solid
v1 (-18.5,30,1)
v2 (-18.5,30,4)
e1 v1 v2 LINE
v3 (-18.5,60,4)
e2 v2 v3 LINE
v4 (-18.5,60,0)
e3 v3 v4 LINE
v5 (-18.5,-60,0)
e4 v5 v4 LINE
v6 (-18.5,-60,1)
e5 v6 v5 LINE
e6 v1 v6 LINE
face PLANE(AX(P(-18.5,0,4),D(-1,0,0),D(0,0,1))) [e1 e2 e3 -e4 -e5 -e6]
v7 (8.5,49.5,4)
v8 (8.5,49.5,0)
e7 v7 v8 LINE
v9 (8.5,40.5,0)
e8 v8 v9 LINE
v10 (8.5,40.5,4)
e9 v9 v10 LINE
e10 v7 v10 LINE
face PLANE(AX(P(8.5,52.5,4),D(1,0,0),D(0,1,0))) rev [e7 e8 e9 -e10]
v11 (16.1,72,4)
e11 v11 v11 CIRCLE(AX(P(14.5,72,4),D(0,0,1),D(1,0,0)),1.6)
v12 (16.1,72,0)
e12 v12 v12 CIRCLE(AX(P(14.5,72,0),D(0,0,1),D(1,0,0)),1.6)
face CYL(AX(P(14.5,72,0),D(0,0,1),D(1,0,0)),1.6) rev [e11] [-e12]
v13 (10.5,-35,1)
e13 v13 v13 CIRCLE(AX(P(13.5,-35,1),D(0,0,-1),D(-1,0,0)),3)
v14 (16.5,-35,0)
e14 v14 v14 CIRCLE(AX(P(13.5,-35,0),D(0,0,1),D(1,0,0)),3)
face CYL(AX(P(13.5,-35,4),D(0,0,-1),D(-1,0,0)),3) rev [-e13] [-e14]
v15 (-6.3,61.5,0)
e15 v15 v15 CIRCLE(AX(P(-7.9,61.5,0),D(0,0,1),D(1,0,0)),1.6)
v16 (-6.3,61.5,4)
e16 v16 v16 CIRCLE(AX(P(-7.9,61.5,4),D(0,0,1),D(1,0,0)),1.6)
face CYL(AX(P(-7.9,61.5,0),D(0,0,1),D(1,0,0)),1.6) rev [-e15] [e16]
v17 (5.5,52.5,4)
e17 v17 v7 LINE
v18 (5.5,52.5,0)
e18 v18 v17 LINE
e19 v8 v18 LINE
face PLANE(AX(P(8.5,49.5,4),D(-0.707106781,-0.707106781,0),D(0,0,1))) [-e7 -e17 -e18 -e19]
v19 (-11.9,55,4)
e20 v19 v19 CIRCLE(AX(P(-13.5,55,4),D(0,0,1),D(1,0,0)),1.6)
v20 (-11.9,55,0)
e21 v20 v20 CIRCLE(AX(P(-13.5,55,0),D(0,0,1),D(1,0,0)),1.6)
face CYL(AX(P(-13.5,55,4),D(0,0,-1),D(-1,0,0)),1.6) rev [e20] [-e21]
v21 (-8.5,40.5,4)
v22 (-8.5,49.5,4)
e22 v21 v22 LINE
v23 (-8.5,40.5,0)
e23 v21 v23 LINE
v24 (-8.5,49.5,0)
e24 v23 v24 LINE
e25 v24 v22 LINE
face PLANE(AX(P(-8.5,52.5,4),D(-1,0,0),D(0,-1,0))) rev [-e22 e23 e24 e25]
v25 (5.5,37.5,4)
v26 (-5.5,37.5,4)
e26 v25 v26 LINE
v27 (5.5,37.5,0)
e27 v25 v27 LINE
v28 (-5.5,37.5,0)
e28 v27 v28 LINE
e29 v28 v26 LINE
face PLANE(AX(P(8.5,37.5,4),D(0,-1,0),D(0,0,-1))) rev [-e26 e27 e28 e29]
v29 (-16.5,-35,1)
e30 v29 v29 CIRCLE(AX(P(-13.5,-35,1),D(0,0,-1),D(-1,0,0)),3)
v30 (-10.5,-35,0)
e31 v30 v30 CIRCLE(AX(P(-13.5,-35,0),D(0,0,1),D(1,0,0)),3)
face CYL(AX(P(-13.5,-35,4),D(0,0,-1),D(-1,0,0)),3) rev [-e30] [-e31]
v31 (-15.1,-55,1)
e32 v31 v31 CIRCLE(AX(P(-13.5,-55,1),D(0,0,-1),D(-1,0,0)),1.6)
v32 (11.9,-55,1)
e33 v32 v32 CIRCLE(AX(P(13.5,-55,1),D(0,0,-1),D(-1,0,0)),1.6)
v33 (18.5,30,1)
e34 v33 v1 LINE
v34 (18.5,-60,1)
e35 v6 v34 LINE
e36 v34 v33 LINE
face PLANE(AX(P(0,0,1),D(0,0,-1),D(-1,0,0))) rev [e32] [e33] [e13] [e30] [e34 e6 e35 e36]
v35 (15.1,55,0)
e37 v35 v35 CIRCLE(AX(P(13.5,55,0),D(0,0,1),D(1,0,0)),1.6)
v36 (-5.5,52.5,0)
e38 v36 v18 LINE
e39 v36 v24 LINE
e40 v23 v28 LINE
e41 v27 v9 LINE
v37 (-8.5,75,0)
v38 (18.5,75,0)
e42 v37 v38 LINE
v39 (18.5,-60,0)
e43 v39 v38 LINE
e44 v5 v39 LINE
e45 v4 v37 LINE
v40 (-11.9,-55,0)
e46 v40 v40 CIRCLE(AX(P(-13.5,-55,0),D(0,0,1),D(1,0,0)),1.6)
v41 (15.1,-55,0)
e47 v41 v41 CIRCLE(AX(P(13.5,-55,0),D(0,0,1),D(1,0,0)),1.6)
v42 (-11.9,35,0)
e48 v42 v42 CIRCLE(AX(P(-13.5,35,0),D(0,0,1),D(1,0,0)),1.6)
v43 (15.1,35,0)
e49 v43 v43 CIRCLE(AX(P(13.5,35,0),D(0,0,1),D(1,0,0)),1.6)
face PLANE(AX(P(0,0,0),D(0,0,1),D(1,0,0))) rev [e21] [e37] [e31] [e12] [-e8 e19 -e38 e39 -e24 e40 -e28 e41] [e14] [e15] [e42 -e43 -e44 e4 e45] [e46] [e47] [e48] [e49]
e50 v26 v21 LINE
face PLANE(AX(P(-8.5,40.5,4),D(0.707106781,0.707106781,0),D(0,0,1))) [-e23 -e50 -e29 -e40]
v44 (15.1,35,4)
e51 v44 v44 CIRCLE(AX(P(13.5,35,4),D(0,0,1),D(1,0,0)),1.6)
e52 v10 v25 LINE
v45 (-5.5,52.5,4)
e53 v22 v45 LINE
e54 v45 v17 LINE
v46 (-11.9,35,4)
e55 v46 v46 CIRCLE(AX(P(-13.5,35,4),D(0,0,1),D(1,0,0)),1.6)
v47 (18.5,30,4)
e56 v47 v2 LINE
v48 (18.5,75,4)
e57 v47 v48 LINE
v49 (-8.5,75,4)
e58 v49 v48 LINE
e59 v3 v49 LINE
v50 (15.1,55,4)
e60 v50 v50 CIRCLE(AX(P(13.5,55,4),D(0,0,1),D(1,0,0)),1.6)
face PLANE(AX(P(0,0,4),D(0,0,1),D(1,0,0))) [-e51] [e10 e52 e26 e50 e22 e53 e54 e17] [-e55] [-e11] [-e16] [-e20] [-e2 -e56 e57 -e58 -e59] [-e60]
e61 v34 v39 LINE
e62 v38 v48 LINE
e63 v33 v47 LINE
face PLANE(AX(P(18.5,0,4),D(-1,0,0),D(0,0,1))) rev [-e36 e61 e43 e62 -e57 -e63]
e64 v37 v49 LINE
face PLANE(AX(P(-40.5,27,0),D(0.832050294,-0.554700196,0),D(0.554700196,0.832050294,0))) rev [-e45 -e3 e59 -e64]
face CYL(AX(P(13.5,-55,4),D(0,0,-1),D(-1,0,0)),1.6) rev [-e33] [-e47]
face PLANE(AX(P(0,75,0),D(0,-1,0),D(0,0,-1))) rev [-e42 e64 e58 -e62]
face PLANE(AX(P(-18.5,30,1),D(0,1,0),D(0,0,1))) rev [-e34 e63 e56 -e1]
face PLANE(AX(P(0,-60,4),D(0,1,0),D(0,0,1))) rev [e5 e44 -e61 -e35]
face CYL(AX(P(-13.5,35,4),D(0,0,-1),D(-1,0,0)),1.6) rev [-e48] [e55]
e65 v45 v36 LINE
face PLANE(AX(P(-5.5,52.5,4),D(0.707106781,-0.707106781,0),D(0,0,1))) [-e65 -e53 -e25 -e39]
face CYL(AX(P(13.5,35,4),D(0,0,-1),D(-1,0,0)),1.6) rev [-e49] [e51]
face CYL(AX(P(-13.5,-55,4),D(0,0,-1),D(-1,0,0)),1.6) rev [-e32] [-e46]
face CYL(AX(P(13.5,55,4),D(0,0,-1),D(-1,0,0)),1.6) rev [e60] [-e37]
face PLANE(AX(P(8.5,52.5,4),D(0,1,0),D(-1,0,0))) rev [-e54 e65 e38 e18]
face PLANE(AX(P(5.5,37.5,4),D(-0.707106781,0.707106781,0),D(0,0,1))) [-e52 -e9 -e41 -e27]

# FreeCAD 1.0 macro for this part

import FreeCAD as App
import Part
import Sketcher
from FreeCAD import Vector


def edges_at(feature, points):
    """Names of the edges that pass closest to the given points."""
    edges = feature.Shape.Edges
    near = lambda p: min(range(len(edges)), key=lambda i: edges[i].distToShape(Part.Vertex(*p))[0])
    return sorted({f"Edge{near(p) + 1}" for p in points})


def add_polygon(sketch, points):
    """Adds a closed chain of lines whose ends are joined by coincident constraints."""
    first, n = sketch.GeometryCount, len(points)
    for a, b in zip(points, points[1:] + points[:1]):
        sketch.addGeometry(Part.LineSegment(App.Vector(*a, 0), App.Vector(*b, 0)), False)
    for i in range(n):
        sketch.addConstraint(Sketcher.Constraint("Coincident", first + i, 2, first + (i + 1) % n, 1))

doc = App.newDocument("Part")
body = doc.addObject("PartDesign::Body", "Body")

sketch1 = doc.addObject("Sketcher::SketchObject", "Sketch")
body.addObject(sketch1)
sketch1.AttachmentSupport = (doc.XY_Plane, [""])
sketch1.MapMode = "FlatFace"
add_polygon(sketch1, [(-18.5, 60), (-18.5, -60), (18.5, -60), (18.5, 60)])
sketch1.addGeometry(Part.Circle(Vector(-13.5, -55, 0), Vector(0, 0, 1), 1.6), False)
sketch1.addGeometry(Part.Circle(Vector(-13.5, -35, 0), Vector(0, 0, 1), 3), False)
sketch1.addGeometry(Part.Circle(Vector(13.5, -55, 0), Vector(0, 0, 1), 1.6), False)
sketch1.addGeometry(Part.Circle(Vector(13.5, -35, 0), Vector(0, 0, 1), 3), False)
sketch1.addGeometry(Part.Circle(Vector(-13.5, 35, 0), Vector(0, 0, 1), 1.6), False)
sketch1.addGeometry(Part.Circle(Vector(-13.5, 55, 0), Vector(0, 0, 1), 1.6), False)
sketch1.addGeometry(Part.Circle(Vector(13.5, 35, 0), Vector(0, 0, 1), 1.6), False)
sketch1.addGeometry(Part.Circle(Vector(13.5, 55, 0), Vector(0, 0, 1), 1.6), False)
sketch1.addConstraint(Sketcher.Constraint("Vertical", 0))
sketch1.addConstraint(Sketcher.Constraint("Horizontal", 1))
sketch1.addConstraint(Sketcher.Constraint("Vertical", 2))
sketch1.addConstraint(Sketcher.Constraint("Horizontal", 3))
sketch1.addConstraint(Sketcher.Constraint("Equal", 4, 6))
sketch1.addConstraint(Sketcher.Constraint("Equal", 5, 7))
sketch1.addConstraint(Sketcher.Constraint("Equal", 6, 8))
sketch1.addConstraint(Sketcher.Constraint("Equal", 8, 9))
sketch1.addConstraint(Sketcher.Constraint("Equal", 9, 10))
sketch1.addConstraint(Sketcher.Constraint("Equal", 10, 11))
sketch1.addConstraint(Sketcher.Constraint("Symmetric", 7, 3, 8, 3, -1, 1))
sketch1.addConstraint(Sketcher.Constraint("Symmetric", 6, 3, 9, 3, -1, 1))
sketch1.addConstraint(Sketcher.Constraint("Symmetric", 5, 3, 10, 3, -1, 1))
sketch1.addConstraint(Sketcher.Constraint("Symmetric", 4, 3, 11, 3, -1, 1))
sketch1.addConstraint(Sketcher.Constraint("Symmetric", 0, 2, 2, 2, -1, 1))
sketch1.addConstraint(Sketcher.Constraint("Symmetric", 4, 3, 6, 3, -2))
sketch1.addConstraint(Sketcher.Constraint("Symmetric", 5, 3, 7, 3, -2))
sketch1.addConstraint(Sketcher.Constraint("Vertical", 4, 3, 5, 3))
sketch1.addConstraint(Sketcher.Constraint("Diameter", 5, 6.0))
sketch1.addConstraint(Sketcher.Constraint("Diameter", 4, 3.2))
sketch1.addConstraint(Sketcher.Constraint("DistanceX", 1, 1, 1, 2, 37.0))
sketch1.addConstraint(Sketcher.Constraint("DistanceY", 0, 2, 0, 1, 120.0))
sketch1.addConstraint(Sketcher.Constraint("DistanceY", 4, 3, -1, 1, 55.0))
sketch1.addConstraint(Sketcher.Constraint("DistanceY", 5, 3, -1, 1, 35.0))
sketch1.addConstraint(Sketcher.Constraint("DistanceX", 4, 3, 6, 3, 27.0))
pad1 = doc.addObject("PartDesign::Pad", "Pad")
body.addObject(pad1)
pad1.Profile = sketch1
pad1.Length = 4

sketch2 = doc.addObject("Sketcher::SketchObject", "Sketch001")
body.addObject(sketch2)
sketch2.AttachmentSupport = (doc.XY_Plane, [""])
sketch2.MapMode = "FlatFace"
sketch2.AttachmentOffset = App.Placement(Vector(0, 0, 4), App.Rotation())
add_polygon(sketch2, [(-18, 30), (-18, -60), (18, -60), (18, 30)])
sketch2.addConstraint(Sketcher.Constraint("Vertical", 0))
sketch2.addConstraint(Sketcher.Constraint("Horizontal", 1))
sketch2.addConstraint(Sketcher.Constraint("Vertical", 2))
sketch2.addConstraint(Sketcher.Constraint("Horizontal", 3))
sketch2.addConstraint(Sketcher.Constraint("DistanceX", 1, 1, 1, 2, 37.0))
sketch2.addConstraint(Sketcher.Constraint("DistanceY", 0, 2, 0, 1, 90.0))
sketch2.addConstraint(Sketcher.Constraint("DistanceY", 0, 2, -1, 1, 60.0))
sketch2.addConstraint(Sketcher.Constraint("DistanceX", 0, 2, -1, 1, 18.5))
pocket1 = doc.addObject("PartDesign::Pocket", "Pocket")
body.addObject(pocket1)
pocket1.Profile = sketch2
pocket1.Length = 3

sketch3 = doc.addObject("Sketcher::SketchObject", "Sketch002")
body.addObject(sketch3)
sketch3.AttachmentSupport = (doc.XY_Plane, [""])
sketch3.MapMode = "FlatFace"
add_polygon(sketch3, [(8, 52), (8, 38), (-8, 38), (-8, 52)])
sketch3.addConstraint(Sketcher.Constraint("Vertical", 0))
sketch3.addConstraint(Sketcher.Constraint("Horizontal", 1))
sketch3.addConstraint(Sketcher.Constraint("Vertical", 2))
sketch3.addConstraint(Sketcher.Constraint("Horizontal", 3))
sketch3.addConstraint(Sketcher.Constraint("DistanceX", 1, 2, 1, 1, 17.0))
sketch3.addConstraint(Sketcher.Constraint("DistanceY", 0, 2, 0, 1, 15.0))
sketch3.addConstraint(Sketcher.Constraint("DistanceX", -1, 1, 0, 2, 8.5))
sketch3.addConstraint(Sketcher.Constraint("DistanceY", -1, 1, 0, 2, 37.5))
pocket2 = doc.addObject("PartDesign::Pocket", "Pocket001")
body.addObject(pocket2)
pocket2.Profile = sketch3
pocket2.Type = "ThroughAll"
pocket2.Reversed = True
doc.recompute()

chamfer = doc.addObject("PartDesign::Chamfer", "Chamfer")
body.addObject(chamfer)
chamfer.Base = (pocket2, edges_at(pocket2, [
    (8.5, 37.5, 2),
    (8.5, 52.5, 2),
    (-8.5, 52.5, 2),
    (-8.5, 37.5, 2),
]))
chamfer.Size = 3

sketch4 = doc.addObject("Sketcher::SketchObject", "Sketch003")
body.addObject(sketch4)
sketch4.AttachmentSupport = (doc.XY_Plane, [""])
sketch4.MapMode = "FlatFace"
sketch4.AttachmentOffset = App.Placement(Vector(0, 0, 4), App.Rotation())
add_polygon(sketch4, [(18, 60), (18, 75), (-8, 75), (-18, 60)])
sketch4.addConstraint(Sketcher.Constraint("Vertical", 0))
sketch4.addConstraint(Sketcher.Constraint("Horizontal", 1))
sketch4.addConstraint(Sketcher.Constraint("Horizontal", 3))
sketch4.addConstraint(Sketcher.Constraint("DistanceX", 1, 2, 1, 1, 27.0))
sketch4.addConstraint(Sketcher.Constraint("DistanceX", 3, 1, 3, 2, 37.0))
sketch4.addConstraint(Sketcher.Constraint("DistanceY", 0, 1, 0, 2, 15.0))
sketch4.addConstraint(Sketcher.Constraint("DistanceY", -1, 1, 0, 2, 75.0))
sketch4.addConstraint(Sketcher.Constraint("DistanceX", -1, 1, 0, 2, 18.5))
pad2 = doc.addObject("PartDesign::Pad", "Pad001")
body.addObject(pad2)
pad2.Profile = sketch4
pad2.Length = 4
pad2.Reversed = True

sketch5 = doc.addObject("Sketcher::SketchObject", "Sketch004")
body.addObject(sketch5)
sketch5.AttachmentSupport = (doc.XY_Plane, [""])
sketch5.MapMode = "FlatFace"
sketch5.AttachmentOffset = App.Placement(Vector(0, 0, 4), App.Rotation())
sketch5.addGeometry(Part.Circle(Vector(14.5, 72, 0), Vector(0, 0, 1), 1.6), False)
sketch5.addGeometry(Part.Circle(Vector(-7.9, 61.5, 0), Vector(0, 0, 1), 1.6), False)
sketch5.addConstraint(Sketcher.Constraint("Equal", 0, 1))
sketch5.addConstraint(Sketcher.Constraint("Diameter", 0, 3.2))
sketch5.addConstraint(Sketcher.Constraint("DistanceY", -1, 1, 0, 3, 72.0))
sketch5.addConstraint(Sketcher.Constraint("DistanceX", -1, 1, 0, 3, 14.5))
sketch5.addConstraint(Sketcher.Constraint("DistanceX", 1, 3, -1, 1, 7.9))
sketch5.addConstraint(Sketcher.Constraint("DistanceY", -1, 1, 1, 3, 61.5))
pocket3 = doc.addObject("PartDesign::Pocket", "Pocket002")
body.addObject(pocket3)
pocket3.Profile = sketch5
pocket3.Type = "ThroughAll"

doc.recompute()
